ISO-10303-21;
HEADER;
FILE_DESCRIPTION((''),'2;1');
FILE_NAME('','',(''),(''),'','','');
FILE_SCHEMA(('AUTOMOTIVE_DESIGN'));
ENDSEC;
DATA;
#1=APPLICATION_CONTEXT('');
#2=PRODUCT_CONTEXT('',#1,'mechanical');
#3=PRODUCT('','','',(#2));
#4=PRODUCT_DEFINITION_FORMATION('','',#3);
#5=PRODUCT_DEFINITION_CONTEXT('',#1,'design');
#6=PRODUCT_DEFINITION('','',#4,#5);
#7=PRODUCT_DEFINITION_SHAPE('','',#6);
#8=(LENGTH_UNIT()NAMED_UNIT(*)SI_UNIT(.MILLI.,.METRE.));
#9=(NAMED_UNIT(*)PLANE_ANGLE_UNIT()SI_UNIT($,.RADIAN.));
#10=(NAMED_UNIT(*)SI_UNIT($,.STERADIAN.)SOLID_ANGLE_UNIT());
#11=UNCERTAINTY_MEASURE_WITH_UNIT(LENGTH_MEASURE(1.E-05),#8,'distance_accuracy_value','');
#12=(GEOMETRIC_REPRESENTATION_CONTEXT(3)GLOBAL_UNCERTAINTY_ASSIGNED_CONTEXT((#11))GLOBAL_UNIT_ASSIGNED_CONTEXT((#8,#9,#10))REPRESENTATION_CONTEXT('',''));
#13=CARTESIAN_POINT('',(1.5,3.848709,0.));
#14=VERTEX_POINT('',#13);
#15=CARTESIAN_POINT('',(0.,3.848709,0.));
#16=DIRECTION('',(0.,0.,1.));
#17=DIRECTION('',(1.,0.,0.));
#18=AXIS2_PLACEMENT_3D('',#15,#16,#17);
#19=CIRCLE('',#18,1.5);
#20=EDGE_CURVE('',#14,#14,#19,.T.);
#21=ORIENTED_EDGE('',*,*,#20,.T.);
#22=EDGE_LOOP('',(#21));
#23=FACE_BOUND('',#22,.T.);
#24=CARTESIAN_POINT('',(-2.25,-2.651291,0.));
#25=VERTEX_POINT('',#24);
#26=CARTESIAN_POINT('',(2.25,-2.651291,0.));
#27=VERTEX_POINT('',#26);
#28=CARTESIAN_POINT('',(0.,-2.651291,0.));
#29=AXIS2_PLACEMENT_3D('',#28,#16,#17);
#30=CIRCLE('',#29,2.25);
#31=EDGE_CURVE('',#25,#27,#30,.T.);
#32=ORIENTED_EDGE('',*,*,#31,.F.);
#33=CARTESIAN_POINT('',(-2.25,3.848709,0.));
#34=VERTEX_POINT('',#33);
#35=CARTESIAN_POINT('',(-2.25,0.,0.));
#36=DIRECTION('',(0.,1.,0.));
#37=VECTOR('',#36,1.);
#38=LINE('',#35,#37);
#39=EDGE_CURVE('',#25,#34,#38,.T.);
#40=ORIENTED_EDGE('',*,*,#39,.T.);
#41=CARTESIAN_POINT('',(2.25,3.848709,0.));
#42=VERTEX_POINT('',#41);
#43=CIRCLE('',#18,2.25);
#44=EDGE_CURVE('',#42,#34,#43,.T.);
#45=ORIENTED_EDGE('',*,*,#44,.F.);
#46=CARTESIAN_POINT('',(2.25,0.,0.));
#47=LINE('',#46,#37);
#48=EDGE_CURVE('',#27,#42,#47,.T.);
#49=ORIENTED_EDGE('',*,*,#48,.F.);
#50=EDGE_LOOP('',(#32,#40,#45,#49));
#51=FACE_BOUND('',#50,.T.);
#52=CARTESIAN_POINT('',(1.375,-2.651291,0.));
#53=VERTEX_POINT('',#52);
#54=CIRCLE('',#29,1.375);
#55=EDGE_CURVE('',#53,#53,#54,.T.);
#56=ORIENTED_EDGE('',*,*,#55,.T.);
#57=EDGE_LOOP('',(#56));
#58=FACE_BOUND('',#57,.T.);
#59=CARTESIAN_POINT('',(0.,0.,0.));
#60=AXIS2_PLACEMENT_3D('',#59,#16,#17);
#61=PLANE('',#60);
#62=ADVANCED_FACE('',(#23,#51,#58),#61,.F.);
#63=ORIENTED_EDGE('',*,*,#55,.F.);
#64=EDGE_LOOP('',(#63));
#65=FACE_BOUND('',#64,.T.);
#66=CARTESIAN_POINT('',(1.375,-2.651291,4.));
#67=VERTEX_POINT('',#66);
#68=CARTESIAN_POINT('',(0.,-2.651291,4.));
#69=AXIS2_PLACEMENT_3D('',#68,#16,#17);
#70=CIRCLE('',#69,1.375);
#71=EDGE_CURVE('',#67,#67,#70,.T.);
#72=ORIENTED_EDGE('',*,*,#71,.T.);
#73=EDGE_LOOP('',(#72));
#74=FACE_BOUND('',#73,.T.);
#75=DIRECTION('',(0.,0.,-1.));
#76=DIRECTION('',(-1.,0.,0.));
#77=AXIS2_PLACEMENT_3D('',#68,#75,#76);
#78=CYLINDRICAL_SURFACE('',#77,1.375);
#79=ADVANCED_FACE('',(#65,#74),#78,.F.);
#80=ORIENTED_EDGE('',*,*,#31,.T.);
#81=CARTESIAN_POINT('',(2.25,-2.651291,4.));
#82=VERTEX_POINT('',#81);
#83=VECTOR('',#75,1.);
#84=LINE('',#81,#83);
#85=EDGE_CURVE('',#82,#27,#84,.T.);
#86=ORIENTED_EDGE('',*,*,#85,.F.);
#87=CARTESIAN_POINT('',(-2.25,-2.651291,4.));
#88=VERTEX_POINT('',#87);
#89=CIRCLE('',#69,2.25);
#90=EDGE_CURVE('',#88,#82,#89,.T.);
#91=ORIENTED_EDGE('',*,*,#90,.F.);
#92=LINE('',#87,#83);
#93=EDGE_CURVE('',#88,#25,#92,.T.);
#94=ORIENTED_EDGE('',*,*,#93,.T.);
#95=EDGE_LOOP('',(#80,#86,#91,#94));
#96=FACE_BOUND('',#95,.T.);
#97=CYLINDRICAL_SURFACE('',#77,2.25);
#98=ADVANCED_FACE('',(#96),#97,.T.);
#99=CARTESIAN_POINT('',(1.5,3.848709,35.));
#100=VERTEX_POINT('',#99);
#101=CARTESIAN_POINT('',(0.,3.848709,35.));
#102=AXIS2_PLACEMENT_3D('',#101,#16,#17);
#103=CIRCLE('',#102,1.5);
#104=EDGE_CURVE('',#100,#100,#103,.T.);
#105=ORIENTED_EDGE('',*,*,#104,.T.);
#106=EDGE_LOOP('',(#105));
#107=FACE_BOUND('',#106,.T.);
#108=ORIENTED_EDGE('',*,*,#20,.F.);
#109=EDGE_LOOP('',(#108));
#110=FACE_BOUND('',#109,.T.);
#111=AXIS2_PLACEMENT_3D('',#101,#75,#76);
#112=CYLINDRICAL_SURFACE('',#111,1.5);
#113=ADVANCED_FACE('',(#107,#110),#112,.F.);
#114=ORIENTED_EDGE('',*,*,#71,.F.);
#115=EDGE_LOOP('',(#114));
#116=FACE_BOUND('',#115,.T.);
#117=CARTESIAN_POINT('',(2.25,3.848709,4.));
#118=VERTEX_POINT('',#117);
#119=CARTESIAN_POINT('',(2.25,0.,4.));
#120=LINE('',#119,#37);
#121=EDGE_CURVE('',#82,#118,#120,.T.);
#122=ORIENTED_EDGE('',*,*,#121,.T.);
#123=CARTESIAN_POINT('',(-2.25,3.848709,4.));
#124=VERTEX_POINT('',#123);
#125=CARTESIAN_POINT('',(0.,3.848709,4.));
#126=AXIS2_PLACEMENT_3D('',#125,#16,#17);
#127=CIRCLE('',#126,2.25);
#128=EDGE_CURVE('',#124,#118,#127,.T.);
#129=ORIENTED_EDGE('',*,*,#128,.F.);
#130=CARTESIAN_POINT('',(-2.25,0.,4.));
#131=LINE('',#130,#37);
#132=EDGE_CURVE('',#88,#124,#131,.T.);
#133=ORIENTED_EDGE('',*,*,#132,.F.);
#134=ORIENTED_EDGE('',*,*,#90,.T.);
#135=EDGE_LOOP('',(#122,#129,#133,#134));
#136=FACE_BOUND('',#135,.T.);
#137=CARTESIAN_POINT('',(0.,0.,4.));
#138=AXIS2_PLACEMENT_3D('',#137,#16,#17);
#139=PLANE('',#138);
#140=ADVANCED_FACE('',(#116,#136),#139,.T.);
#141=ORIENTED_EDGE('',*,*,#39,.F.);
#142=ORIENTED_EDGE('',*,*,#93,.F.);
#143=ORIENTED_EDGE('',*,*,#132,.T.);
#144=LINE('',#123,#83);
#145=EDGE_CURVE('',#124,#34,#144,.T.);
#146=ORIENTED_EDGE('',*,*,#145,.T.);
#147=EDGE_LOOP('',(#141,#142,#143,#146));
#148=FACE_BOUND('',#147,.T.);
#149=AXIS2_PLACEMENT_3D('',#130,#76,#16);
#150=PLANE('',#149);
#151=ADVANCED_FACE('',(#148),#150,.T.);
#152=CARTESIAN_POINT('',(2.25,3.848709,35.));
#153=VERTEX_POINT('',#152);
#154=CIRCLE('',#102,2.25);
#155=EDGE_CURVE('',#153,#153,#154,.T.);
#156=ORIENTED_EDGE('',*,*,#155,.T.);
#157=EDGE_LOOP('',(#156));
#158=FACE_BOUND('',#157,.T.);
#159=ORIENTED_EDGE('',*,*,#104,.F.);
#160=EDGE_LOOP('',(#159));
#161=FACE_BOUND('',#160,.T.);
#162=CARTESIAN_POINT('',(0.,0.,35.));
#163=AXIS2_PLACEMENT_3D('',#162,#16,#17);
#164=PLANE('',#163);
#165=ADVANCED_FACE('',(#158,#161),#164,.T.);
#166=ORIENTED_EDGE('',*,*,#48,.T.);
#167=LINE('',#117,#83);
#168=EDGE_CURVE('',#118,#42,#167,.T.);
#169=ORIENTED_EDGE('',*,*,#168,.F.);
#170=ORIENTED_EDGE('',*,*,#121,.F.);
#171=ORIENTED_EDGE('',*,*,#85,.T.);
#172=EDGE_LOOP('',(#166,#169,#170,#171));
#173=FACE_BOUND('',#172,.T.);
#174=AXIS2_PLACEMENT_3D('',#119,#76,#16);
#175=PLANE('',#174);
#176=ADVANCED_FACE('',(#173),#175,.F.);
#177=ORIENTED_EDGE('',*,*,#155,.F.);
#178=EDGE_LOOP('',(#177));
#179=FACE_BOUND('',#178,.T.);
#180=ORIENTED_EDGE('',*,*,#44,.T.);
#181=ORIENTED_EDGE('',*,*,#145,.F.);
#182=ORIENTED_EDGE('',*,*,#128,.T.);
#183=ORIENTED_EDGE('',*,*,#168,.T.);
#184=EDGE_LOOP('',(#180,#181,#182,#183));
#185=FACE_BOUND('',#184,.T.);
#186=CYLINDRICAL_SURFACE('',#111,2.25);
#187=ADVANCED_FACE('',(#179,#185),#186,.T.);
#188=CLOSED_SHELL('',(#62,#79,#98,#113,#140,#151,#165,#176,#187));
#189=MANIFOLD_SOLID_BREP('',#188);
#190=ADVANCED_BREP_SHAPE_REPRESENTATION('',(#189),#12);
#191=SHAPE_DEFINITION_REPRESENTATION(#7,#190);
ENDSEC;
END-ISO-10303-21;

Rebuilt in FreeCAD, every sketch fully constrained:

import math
import FreeCAD as App
import Part
import Sketcher
from FreeCAD import Vector
Q = App.Units.Quantity

doc = App.newDocument("Part")
body = doc.addObject("PartDesign::Body", "Body")

# Sketch on XY plane
sketch1 = body.newObject("Sketcher::SketchObject", "Sketch")
sketch1.AttachmentSupport = (doc.getObject("XY_Plane"), [""])
sketch1.MapMode = "FlatFace"
sketch1.addGeometry([
    Part.LineSegment(Vector(-2.2, 3.8, 0), Vector(-2.2, -2.7, 0)),  # 0
    Part.ArcOfCircle(Part.Circle(Vector(0, -2.7, 0), Vector(0, 0, 1), 2.2), math.radians(180), math.radians(360)),  # 1
    Part.LineSegment(Vector(2.2, -2.7, 0), Vector(2.2, 3.8, 0)),  # 2
    Part.ArcOfCircle(Part.Circle(Vector(0, 3.8, 0), Vector(0, 0, 1), 2.2), math.radians(180), math.radians(360)),  # 3
    Part.Circle(Vector(0, -2.7, 0), Vector(0, 0, 1), 1.4),  # 4
], False)
sketch1.addConstraint([
    Sketcher.Constraint("Tangent", 0, 2, 1, 1),
    Sketcher.Constraint("Tangent", 1, 2, 2, 1),
    Sketcher.Constraint("Tangent", 2, 2, 3, 2),
    Sketcher.Constraint("Tangent", 3, 1, 0, 1),
    Sketcher.Constraint("Vertical", 0),
    Sketcher.Constraint("Vertical", 2),
    Sketcher.Constraint("Coincident", 4, 3, 1, 3),
    Sketcher.Constraint("PointOnObject", 1, 3, -2),
    Sketcher.Constraint("Diameter", 4, Q("2.75 mm")),
    Sketcher.Constraint("Radius", 1, Q("2.25 mm")),
    Sketcher.Constraint("DistanceY", 0, 2, 0, 1, Q("6.5 mm")),
    Sketcher.Constraint("DistanceY", 1, 3, -1, 1, Q("2.651291 mm")),
])
pad1 = body.newObject("PartDesign::Pad", "Pad")
pad1.Profile = sketch1
pad1.Length = 4

# Sketch on XY plane
sketch2 = body.newObject("Sketcher::SketchObject", "Sketch001")
sketch2.AttachmentSupport = (doc.getObject("XY_Plane"), [""])
sketch2.MapMode = "FlatFace"
sketch2.addGeometry([
    Part.Circle(Vector(0, 3.8, 0), Vector(0, 0, 1), 2.2),
    Part.Circle(Vector(0, 3.8, 0), Vector(0, 0, 1), 1.5),
], False)
sketch2.addConstraint([
    Sketcher.Constraint("Coincident", 1, 3, 0, 3),
    Sketcher.Constraint("PointOnObject", 0, 3, -2),
    Sketcher.Constraint("Diameter", 1, Q("3 mm")),
    Sketcher.Constraint("Diameter", 0, Q("4.5 mm")),
    Sketcher.Constraint("DistanceY", -1, 1, 0, 3, Q("3.848709 mm")),
])
pad2 = body.newObject("PartDesign::Pad", "Pad001")
pad2.Profile = sketch2
pad2.Length = 35

doc.recompute()
